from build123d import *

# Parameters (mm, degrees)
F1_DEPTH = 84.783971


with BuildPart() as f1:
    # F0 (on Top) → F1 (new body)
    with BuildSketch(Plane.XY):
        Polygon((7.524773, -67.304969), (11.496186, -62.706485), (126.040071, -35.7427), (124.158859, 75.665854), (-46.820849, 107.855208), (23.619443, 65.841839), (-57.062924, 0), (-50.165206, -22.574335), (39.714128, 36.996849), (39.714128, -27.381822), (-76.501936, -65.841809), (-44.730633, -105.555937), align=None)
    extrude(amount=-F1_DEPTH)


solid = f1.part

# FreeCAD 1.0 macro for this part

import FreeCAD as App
import Part
import Sketcher
from FreeCAD import Vector
Q = App.Units.Quantity


def add_polygon(sketch, points):
    """Adds a closed chain of lines whose ends are joined by coincident constraints."""
    first, n = sketch.GeometryCount, len(points)
    for a, b in zip(points, points[1:] + points[:1]):
        sketch.addGeometry(Part.LineSegment(App.Vector(*a, 0), App.Vector(*b, 0)), False)
    for i in range(n):
        sketch.addConstraint(Sketcher.Constraint("Coincident", first + i, 2, first + (i + 1) % n, 1))

doc = App.newDocument("Part")
body = doc.addObject("PartDesign::Body", "Body")

# Sketch on XY plane
sketch1 = body.newObject("Sketcher::SketchObject", "Sketch")
sketch1.AttachmentSupport = (doc.getObject("XY_Plane"), [""])
sketch1.MapMode = "FlatFace"
add_polygon(sketch1, [(7.524773, -67.304969), (11.496186, -62.706485), (126.040071, -35.7427), (124.158859, 75.665854), (-46.820849, 107.855208), (23.619443, 65.841839), (-57.062924, 0), (-50.165206, -22.574335), (39.714128, 36.996849), (39.714128, -27.381822), (-76.501936, -65.841809), (-44.730633, -105.555937)])  # lines 0-11
sketch1.addConstraint(Sketcher.Constraint("Vertical", 8))
sketch1.addConstraint(Sketcher.Constraint("PointOnObject", 5, 2, -1))
sketch1.addConstraint(Sketcher.Constraint("Distance", 10, Q("50.858899 mm")))
sketch1.addConstraint(Sketcher.Constraint("DistanceY", 8, 2, 8, 1, Q("64.378671 mm")))
sketch1.addConstraint(Sketcher.Constraint("DistanceY", 1, 2, -1, 1, Q("35.7427 mm")))
sketch1.addConstraint(Sketcher.Constraint("DistanceY", 10, 2, 6, 2, Q("82.981602 mm")))
sketch1.addConstraint(Sketcher.Constraint("Distance", 5, Q("104.138332 mm")))
sketch1.addConstraint(Sketcher.Constraint("Distance", 6, Q("23.604642 mm")))
sketch1.addConstraint(Sketcher.Constraint("Distance", 9, Q("122.41464 mm")))
sketch1.addConstraint(Sketcher.Constraint("DistanceX", -1, 1, 1, 2, Q("126.040071 mm")))
sketch1.addConstraint(Sketcher.Constraint("DistanceX", -1, 1, 2, 2, Q("124.158859 mm")))
sketch1.addConstraint(Sketcher.Constraint("DistanceX", 3, 2, -1, 1, Q("46.820849 mm")))
sketch1.addConstraint(Sketcher.Constraint("DistanceY", -1, 1, 3, 2, Q("107.855208 mm")))
sketch1.addConstraint(Sketcher.Constraint("DistanceY", -1, 1, 4, 2, Q("65.841839 mm")))
sketch1.addConstraint(Sketcher.Constraint("DistanceX", -1, 1, 7, 2, Q("39.714128 mm")))
sketch1.addConstraint(Sketcher.Constraint("DistanceY", -1, 1, 7, 2, Q("36.996849 mm")))
sketch1.addConstraint(Sketcher.Constraint("DistanceY", 9, 2, -1, 1, Q("65.841809 mm")))
sketch1.addConstraint(Sketcher.Constraint("DistanceY", 11, 2, -1, 1, Q("67.304969 mm")))
sketch1.addConstraint(Sketcher.Constraint("DistanceY", 0, 2, 2, 2, Q("138.372339 mm")))
sketch1.addConstraint(Sketcher.Constraint("DistanceX", 3, 2, 4, 2, Q("70.440292 mm")))
sketch1.addConstraint(Sketcher.Constraint("DistanceX", 5, 2, 0, 2, Q("68.55911 mm")))
sketch1.addConstraint(Sketcher.Constraint("DistanceX", 5, 2, 6, 2, Q("6.897718 mm")))
sketch1.addConstraint(Sketcher.Constraint("DistanceY", 0, 2, 6, 2, Q("40.13215 mm")))
sketch1.addConstraint(Sketcher.Constraint("DistanceX", 6, 2, 11, 2, Q("57.689979 mm")))
pad1 = body.newObject("PartDesign::Pad", "Pad")
pad1.Profile = sketch1
pad1.Length = 84.783971
pad1.Reversed = True

doc.recompute()
